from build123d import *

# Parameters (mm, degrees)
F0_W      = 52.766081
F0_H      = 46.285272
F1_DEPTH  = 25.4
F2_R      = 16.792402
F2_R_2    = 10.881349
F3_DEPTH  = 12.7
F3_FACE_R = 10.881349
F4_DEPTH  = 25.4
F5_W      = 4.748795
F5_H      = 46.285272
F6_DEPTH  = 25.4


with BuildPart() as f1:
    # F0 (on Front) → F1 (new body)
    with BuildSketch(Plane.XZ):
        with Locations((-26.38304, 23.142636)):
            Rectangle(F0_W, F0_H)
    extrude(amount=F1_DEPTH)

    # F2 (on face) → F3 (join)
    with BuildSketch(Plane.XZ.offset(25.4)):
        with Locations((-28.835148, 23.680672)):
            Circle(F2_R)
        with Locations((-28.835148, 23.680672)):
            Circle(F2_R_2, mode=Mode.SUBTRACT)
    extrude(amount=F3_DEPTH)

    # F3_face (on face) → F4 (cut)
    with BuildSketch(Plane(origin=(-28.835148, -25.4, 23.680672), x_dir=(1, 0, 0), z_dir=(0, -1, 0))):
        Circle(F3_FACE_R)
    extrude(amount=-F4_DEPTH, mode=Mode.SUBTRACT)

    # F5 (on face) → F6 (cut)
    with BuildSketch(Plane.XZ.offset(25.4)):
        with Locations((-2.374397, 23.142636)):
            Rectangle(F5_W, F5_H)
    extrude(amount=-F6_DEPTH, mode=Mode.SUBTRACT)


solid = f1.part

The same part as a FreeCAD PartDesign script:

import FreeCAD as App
import Part
import Sketcher

V = App.Vector
Q = App.Units.Quantity

doc = App.newDocument("Part")
body = doc.addObject("PartDesign::Body", "Body")

sketch1 = doc.addObject("Sketcher::SketchObject", "Sketch")
body.addObject(sketch1)
sketch1.AttachmentSupport = (doc.XZ_Plane, [""])
sketch1.MapMode = "FlatFace"
sketch1.addGeometry(Part.LineSegment(V(-53, 46, 0), V(-53, 0, 0)), False)
sketch1.addGeometry(Part.LineSegment(V(-53, 0, 0), V(0, 0, 0)), False)
sketch1.addGeometry(Part.LineSegment(V(0, 0, 0), V(0, 46, 0)), False)
sketch1.addGeometry(Part.LineSegment(V(0, 46, 0), V(-53, 46, 0)), False)
sketch1.addConstraint(Sketcher.Constraint("Coincident", 0, 2, 1, 1))
sketch1.addConstraint(Sketcher.Constraint("Coincident", 1, 2, 2, 1))
sketch1.addConstraint(Sketcher.Constraint("Coincident", 2, 2, 3, 1))
sketch1.addConstraint(Sketcher.Constraint("Coincident", 3, 2, 0, 1))
sketch1.addConstraint(Sketcher.Constraint("Vertical", 0))
sketch1.addConstraint(Sketcher.Constraint("Horizontal", 1))
sketch1.addConstraint(Sketcher.Constraint("Vertical", 2))
sketch1.addConstraint(Sketcher.Constraint("Horizontal", 3))
sketch1.addConstraint(Sketcher.Constraint("Coincident", 1, 2, -1, 1))
sketch1.addConstraint(Sketcher.Constraint("DistanceX", 1, 1, 1, 2, Q("52.766081 mm")))
sketch1.addConstraint(Sketcher.Constraint("DistanceY", 0, 2, 0, 1, Q("46.285272 mm")))
pad1 = doc.addObject("PartDesign::Pad", "Pad")
body.addObject(pad1)
pad1.Profile = sketch1
pad1.Length = Q("1 in")

sketch2 = doc.addObject("Sketcher::SketchObject", "Sketch001")
body.addObject(sketch2)
sketch2.AttachmentSupport = (doc.XZ_Plane, [""])
sketch2.MapMode = "FlatFace"
sketch2.AttachmentOffset = App.Placement(V(0, 0, 1 * 25.4), App.Rotation())
sketch2.addGeometry(Part.Circle(V(-29, 24, 0), V(0, 0, 1), 17), False)
sketch2.addGeometry(Part.Circle(V(-29, 24, 0), V(0, 0, 1), 11), False)
sketch2.addConstraint(Sketcher.Constraint("Coincident", 1, 3, 0, 3))
sketch2.addConstraint(Sketcher.Constraint("Diameter", 1, Q("21.762698 mm")))
sketch2.addConstraint(Sketcher.Constraint("Diameter", 0, Q("33.584804 mm")))
sketch2.addConstraint(Sketcher.Constraint("DistanceX", 0, 3, -1, 1, Q("28.835148 mm")))
sketch2.addConstraint(Sketcher.Constraint("DistanceY", -1, 1, 0, 3, Q("23.680672 mm")))
pad2 = doc.addObject("PartDesign::Pad", "Pad001")
body.addObject(pad2)
pad2.Profile = sketch2
pad2.Length = Q("0.5 in")

sketch3 = doc.addObject("Sketcher::SketchObject", "Sketch002")
body.addObject(sketch3)
sketch3.AttachmentSupport = (doc.XZ_Plane, [""])
sketch3.MapMode = "FlatFace"
sketch3.AttachmentOffset = App.Placement(V(0, 0, 1 * 25.4), App.Rotation())
sketch3.addGeometry(Part.Circle(V(-29, 24, 0), V(0, 0, 1), 11), False)
sketch3.addConstraint(Sketcher.Constraint("Diameter", 0, Q("21.762698 mm")))
sketch3.addConstraint(Sketcher.Constraint("DistanceX", 0, 3, -1, 1, Q("28.835148 mm")))
sketch3.addConstraint(Sketcher.Constraint("DistanceY", -1, 1, 0, 3, Q("23.680672 mm")))
pocket1 = doc.addObject("PartDesign::Pocket", "Pocket")
body.addObject(pocket1)
pocket1.Profile = sketch3
pocket1.Length = Q("1 in")

sketch4 = doc.addObject("Sketcher::SketchObject", "Sketch003")
body.addObject(sketch4)
sketch4.AttachmentSupport = (doc.XZ_Plane, [""])
sketch4.MapMode = "FlatFace"
sketch4.AttachmentOffset = App.Placement(V(0, 0, 1 * 25.4), App.Rotation())
sketch4.addGeometry(Part.LineSegment(V(-4.7, 46.3, 0), V(-4.7, 0, 0)), False)
sketch4.addGeometry(Part.LineSegment(V(-4.7, 0, 0), V(0, 0, 0)), False)
sketch4.addGeometry(Part.LineSegment(V(0, 0, 0), V(0, 46.3, 0)), False)
sketch4.addGeometry(Part.LineSegment(V(0, 46.3, 0), V(-4.7, 46.3, 0)), False)
sketch4.addConstraint(Sketcher.Constraint("Coincident", 0, 2, 1, 1))
sketch4.addConstraint(Sketcher.Constraint("Coincident", 1, 2, 2, 1))
sketch4.addConstraint(Sketcher.Constraint("Coincident", 2, 2, 3, 1))
sketch4.addConstraint(Sketcher.Constraint("Coincident", 3, 2, 0, 1))
sketch4.addConstraint(Sketcher.Constraint("Vertical", 0))
sketch4.addConstraint(Sketcher.Constraint("Horizontal", 1))
sketch4.addConstraint(Sketcher.Constraint("Vertical", 2))
sketch4.addConstraint(Sketcher.Constraint("Horizontal", 3))
sketch4.addConstraint(Sketcher.Constraint("Coincident", 1, 2, -1, 1))
sketch4.addConstraint(Sketcher.Constraint("DistanceX", 1, 1, 1, 2, Q("4.748795 mm")))
sketch4.addConstraint(Sketcher.Constraint("DistanceY", 0, 2, 0, 1, Q("46.285272 mm")))
pocket2 = doc.addObject("PartDesign::Pocket", "Pocket001")
body.addObject(pocket2)
pocket2.Profile = sketch4
pocket2.Length = Q("1 in")

doc.recompute()
